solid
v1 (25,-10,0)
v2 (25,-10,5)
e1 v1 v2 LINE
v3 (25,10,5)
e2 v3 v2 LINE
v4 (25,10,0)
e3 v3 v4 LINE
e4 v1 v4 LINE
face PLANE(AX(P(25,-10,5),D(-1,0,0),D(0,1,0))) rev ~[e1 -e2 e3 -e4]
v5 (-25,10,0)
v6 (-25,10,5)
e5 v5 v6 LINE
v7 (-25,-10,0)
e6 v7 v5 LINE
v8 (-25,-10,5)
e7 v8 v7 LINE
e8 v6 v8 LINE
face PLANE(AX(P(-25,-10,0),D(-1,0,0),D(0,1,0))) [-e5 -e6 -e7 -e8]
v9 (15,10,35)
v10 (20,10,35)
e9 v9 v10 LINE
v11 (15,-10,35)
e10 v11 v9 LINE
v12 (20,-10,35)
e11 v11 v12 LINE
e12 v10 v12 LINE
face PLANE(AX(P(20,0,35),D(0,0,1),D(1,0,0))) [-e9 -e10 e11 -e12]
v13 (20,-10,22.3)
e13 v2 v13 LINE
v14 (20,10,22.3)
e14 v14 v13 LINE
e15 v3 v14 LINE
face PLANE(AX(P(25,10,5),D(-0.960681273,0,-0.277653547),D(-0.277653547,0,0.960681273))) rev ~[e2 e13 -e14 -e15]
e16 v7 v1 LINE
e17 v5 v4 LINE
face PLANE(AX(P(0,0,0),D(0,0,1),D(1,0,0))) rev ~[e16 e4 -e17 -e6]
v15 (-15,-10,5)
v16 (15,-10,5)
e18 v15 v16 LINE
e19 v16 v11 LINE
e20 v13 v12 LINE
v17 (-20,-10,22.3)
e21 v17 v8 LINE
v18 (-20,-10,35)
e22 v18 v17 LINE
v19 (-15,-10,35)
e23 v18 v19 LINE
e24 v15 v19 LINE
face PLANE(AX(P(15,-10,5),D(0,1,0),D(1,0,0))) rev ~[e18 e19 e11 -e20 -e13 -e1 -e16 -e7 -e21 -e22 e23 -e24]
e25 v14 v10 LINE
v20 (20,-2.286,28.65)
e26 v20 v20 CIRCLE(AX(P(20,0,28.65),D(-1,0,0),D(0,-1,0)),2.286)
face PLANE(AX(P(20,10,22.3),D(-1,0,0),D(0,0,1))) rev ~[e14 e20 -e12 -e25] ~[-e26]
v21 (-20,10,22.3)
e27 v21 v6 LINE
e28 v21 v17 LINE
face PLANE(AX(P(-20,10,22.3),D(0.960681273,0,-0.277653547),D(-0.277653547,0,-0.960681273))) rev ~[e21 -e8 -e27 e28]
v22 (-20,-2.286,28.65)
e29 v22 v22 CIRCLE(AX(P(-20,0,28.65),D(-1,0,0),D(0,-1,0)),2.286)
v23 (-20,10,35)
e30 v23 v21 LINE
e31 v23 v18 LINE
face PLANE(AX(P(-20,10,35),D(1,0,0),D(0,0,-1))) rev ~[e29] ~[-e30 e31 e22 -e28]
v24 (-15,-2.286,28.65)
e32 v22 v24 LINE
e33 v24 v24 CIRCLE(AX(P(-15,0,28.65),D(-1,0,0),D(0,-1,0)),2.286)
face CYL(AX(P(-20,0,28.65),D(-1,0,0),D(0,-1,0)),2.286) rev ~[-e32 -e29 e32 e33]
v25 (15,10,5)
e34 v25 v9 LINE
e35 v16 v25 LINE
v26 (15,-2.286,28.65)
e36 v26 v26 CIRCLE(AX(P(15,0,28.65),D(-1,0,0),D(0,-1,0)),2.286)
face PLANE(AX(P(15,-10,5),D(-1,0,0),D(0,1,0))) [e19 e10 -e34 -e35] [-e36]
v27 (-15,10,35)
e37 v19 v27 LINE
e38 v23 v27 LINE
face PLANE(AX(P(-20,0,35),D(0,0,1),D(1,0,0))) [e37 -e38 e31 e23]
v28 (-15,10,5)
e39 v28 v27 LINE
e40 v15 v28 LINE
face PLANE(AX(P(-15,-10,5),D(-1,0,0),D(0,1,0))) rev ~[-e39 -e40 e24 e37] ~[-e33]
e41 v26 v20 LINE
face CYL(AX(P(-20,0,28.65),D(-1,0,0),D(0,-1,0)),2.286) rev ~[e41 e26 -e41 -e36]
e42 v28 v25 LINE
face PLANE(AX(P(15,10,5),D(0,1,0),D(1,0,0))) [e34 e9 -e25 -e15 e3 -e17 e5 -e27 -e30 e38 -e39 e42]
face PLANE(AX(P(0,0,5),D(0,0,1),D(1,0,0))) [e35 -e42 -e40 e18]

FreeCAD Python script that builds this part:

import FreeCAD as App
import Part
import Sketcher

V = App.Vector
Q = App.Units.Quantity


def add_polygon(sketch, points):
    """Adds a closed chain of lines whose ends are joined by coincident constraints."""
    first, n = sketch.GeometryCount, len(points)
    for a, b in zip(points, points[1:] + points[:1]):
        sketch.addGeometry(Part.LineSegment(App.Vector(*a, 0), App.Vector(*b, 0)), False)
    for i in range(n):
        sketch.addConstraint(Sketcher.Constraint("Coincident", first + i, 2, first + (i + 1) % n, 1))

doc = App.newDocument("Part")
body = doc.addObject("PartDesign::Body", "Body")

# Sketch on XY plane
sketch1 = body.newObject("Sketcher::SketchObject", "Sketch")
sketch1.AttachmentSupport = (doc.getObject("XY_Plane"), [""])
sketch1.MapMode = "FlatFace"
add_polygon(sketch1, [(-25, 10), (-25, -10), (25, -10), (25, 10)])  # lines 0-3
sketch1.addConstraint([
    Sketcher.Constraint("Vertical", 0),
    Sketcher.Constraint("Horizontal", 1),
    Sketcher.Constraint("Vertical", 2),
    Sketcher.Constraint("Horizontal", 3),
    Sketcher.Constraint("Symmetric", 0, 2, 2, 2, -1, 1),
    Sketcher.Constraint("DistanceX", 1, 1, 1, 2, Q("50 mm")),
    Sketcher.Constraint("DistanceY", 0, 2, 0, 1, Q("20 mm")),
])
pad1 = body.newObject("PartDesign::Pad", "Pad")
pad1.Profile = sketch1
pad1.Length = 5

# Sketch on XY plane
sketch2 = body.newObject("Sketcher::SketchObject", "Sketch001")
sketch2.AttachmentSupport = (doc.getObject("XY_Plane"), [""])
sketch2.MapMode = "FlatFace"
sketch2.AttachmentOffset = App.Placement(V(0, 0, 5), App.Rotation())
add_polygon(sketch2, [(15, 10), (15, -10), (25, -10), (25, 10)])  # lines 0-3
add_polygon(sketch2, [(-25, 10), (-25, -10), (-15, -10), (-15, 10)])  # lines 4-7
sketch2.addConstraint([
    Sketcher.Constraint("Vertical", 0),
    Sketcher.Constraint("Horizontal", 1),
    Sketcher.Constraint("Vertical", 2),
    Sketcher.Constraint("Horizontal", 3),
    Sketcher.Constraint("Vertical", 4),
    Sketcher.Constraint("Horizontal", 5),
    Sketcher.Constraint("Vertical", 6),
    Sketcher.Constraint("Horizontal", 7),
    Sketcher.Constraint("Symmetric", 2, 2, 4, 2, -1, 1),
    Sketcher.Constraint("Symmetric", 0, 2, 6, 2, -1, 1),
    Sketcher.Constraint("Horizontal", 1, 2, 4, 2),
    Sketcher.Constraint("DistanceX", 1, 1, 1, 2, Q("10 mm")),
    Sketcher.Constraint("DistanceY", 0, 2, 0, 1, Q("20 mm")),
    Sketcher.Constraint("DistanceX", -1, 1, 0, 2, Q("15 mm")),
])
pad2 = body.newObject("PartDesign::Pad", "Pad001")
pad2.Profile = sketch2
pad2.Length = 30

# Sketch on XZ plane
sketch3 = body.newObject("Sketcher::SketchObject", "Sketch002")
sketch3.AttachmentSupport = (doc.getObject("XZ_Plane"), [""])
sketch3.MapMode = "FlatFace"
sketch3.AttachmentOffset = App.Placement(V(0, 0, -10), App.Rotation())
add_polygon(sketch3, [(25, 5), (20, 22), (20, 35), (25, 35)])  # lines 0-3
add_polygon(sketch3, [(-20, 35), (-20, 22), (-25, 5), (-25, 35)])  # lines 4-7
sketch3.addConstraint([
    Sketcher.Constraint("Vertical", 1),
    Sketcher.Constraint("Horizontal", 2),
    Sketcher.Constraint("Vertical", 3),
    Sketcher.Constraint("Vertical", 4),
    Sketcher.Constraint("Vertical", 6),
    Sketcher.Constraint("Horizontal", 7),
    Sketcher.Constraint("Symmetric", 0, 2, 4, 2, -2),
    Sketcher.Constraint("Symmetric", 3, 2, 5, 2, -2),
    Sketcher.Constraint("Horizontal", 2, 2, 6, 2),
    Sketcher.Constraint("DistanceX", 2, 1, 2, 2, Q("5 mm")),
    Sketcher.Constraint("DistanceY", 3, 2, 3, 1, Q("30 mm")),
    Sketcher.Constraint("DistanceY", 1, 1, 1, 2, Q("12.7 mm")),
    Sketcher.Constraint("DistanceX", -1, 1, 0, 2, Q("20 mm")),
    Sketcher.Constraint("DistanceY", -1, 1, 1, 2, Q("35 mm")),
])
pocket1 = body.newObject("PartDesign::Pocket", "Pocket")
pocket1.Profile = sketch3
pocket1.Type = "ThroughAll"
pocket1.Reversed = True

# Sketch on YZ plane
sketch4 = body.newObject("Sketcher::SketchObject", "Sketch003")
sketch4.AttachmentSupport = (doc.getObject("YZ_Plane"), [""])
sketch4.MapMode = "FlatFace"
sketch4.AttachmentOffset = App.Placement(V(0, 0, -20), App.Rotation())
sketch4.addGeometry(Part.Circle(V(0, 28.6, 0), V(0, 0, 1), 2.3), False)
sketch4.addConstraint([
    Sketcher.Constraint("PointOnObject", 0, 3, -2),
    Sketcher.Constraint("Diameter", 0, Q("4.572 mm")),
    Sketcher.Constraint("DistanceY", -1, 1, 0, 3, Q("28.65 mm")),
])
pocket2 = body.newObject("PartDesign::Pocket", "Pocket001")
pocket2.Profile = sketch4
pocket2.Type = "ThroughAll"
pocket2.Reversed = True

doc.recompute()
